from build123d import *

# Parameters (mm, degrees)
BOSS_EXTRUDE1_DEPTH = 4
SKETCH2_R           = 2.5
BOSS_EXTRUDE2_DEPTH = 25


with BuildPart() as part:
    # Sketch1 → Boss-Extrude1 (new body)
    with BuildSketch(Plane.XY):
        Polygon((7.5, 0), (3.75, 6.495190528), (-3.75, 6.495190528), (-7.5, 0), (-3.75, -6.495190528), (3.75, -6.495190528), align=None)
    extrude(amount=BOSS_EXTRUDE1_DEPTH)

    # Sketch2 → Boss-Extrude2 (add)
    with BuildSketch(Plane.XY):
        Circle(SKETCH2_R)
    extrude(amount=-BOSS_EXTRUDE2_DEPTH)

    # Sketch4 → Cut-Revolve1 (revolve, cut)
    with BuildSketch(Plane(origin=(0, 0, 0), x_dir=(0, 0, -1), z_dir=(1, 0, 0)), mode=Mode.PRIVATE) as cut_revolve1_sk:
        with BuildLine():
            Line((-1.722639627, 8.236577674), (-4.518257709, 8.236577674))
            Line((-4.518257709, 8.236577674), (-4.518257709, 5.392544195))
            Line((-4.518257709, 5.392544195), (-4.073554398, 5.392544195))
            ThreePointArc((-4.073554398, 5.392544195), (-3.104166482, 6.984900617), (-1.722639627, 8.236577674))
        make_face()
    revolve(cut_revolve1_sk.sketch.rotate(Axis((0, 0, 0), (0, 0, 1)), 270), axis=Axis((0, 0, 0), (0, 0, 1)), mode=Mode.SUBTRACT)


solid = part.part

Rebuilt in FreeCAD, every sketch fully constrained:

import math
import FreeCAD as App
import Part
import Sketcher
Q = App.Units.Quantity

doc = App.newDocument("Part")
body = doc.addObject("PartDesign::Body", "Body")

# Sketch on XY plane
sketch1 = body.newObject("Sketcher::SketchObject", "Sketch")
sketch1.AttachmentSupport = (doc.getObject("XY_Plane"), [""])
sketch1.MapMode = "FlatFace"
sketch1.addGeometry(Part.LineSegment(App.Vector(8, 0, 0), App.Vector(4, 6, 0)), False)
sketch1.addGeometry(Part.LineSegment(App.Vector(4, 6, 0), App.Vector(-4, 6, 0)), False)
sketch1.addGeometry(Part.LineSegment(App.Vector(-4, 6, 0), App.Vector(-8, 0, 0)), False)
sketch1.addGeometry(Part.LineSegment(App.Vector(-8, 0, 0), App.Vector(-4, -6, 0)), False)
sketch1.addGeometry(Part.LineSegment(App.Vector(-4, -6, 0), App.Vector(4, -6, 0)), False)
sketch1.addGeometry(Part.LineSegment(App.Vector(4, -6, 0), App.Vector(8, 0, 0)), False)
sketch1.addConstraint(Sketcher.Constraint("Coincident", 0, 2, 1, 1))
sketch1.addConstraint(Sketcher.Constraint("Coincident", 1, 2, 2, 1))
sketch1.addConstraint(Sketcher.Constraint("Coincident", 2, 2, 3, 1))
sketch1.addConstraint(Sketcher.Constraint("Coincident", 3, 2, 4, 1))
sketch1.addConstraint(Sketcher.Constraint("Coincident", 4, 2, 5, 1))
sketch1.addConstraint(Sketcher.Constraint("Coincident", 5, 2, 0, 1))
sketch1.addConstraint(Sketcher.Constraint("Horizontal", 1))
sketch1.addConstraint(Sketcher.Constraint("Horizontal", 4))
sketch1.addConstraint(Sketcher.Constraint("Symmetric", 0, 2, 3, 2, -1, 1))
sketch1.addConstraint(Sketcher.Constraint("Symmetric", 2, 2, 5, 2, -1, 1))
sketch1.addConstraint(Sketcher.Constraint("PointOnObject", 2, 2, -1))
sketch1.addConstraint(Sketcher.Constraint("Parallel", 2, 5))
sketch1.addConstraint(Sketcher.Constraint("Vertical", 1, 2, 3, 2))
sketch1.addConstraint(Sketcher.Constraint("Angle", 0, Q("120 deg")))
sketch1.addConstraint(Sketcher.Constraint("DistanceX", 1, 2, 1, 1, 7.5))
sketch1.addConstraint(Sketcher.Constraint("DistanceX", 2, 2, 5, 2, 15.0))
pad1 = body.newObject("PartDesign::Pad", "Pad")
pad1.Profile = sketch1
pad1.Length = 4

# Sketch on XY plane
sketch2 = body.newObject("Sketcher::SketchObject", "Sketch001")
sketch2.AttachmentSupport = (doc.getObject("XY_Plane"), [""])
sketch2.MapMode = "FlatFace"
sketch2.addGeometry(Part.Circle(App.Vector(0, 0, 0), App.Vector(0, 0, 1), 2.5), False)
sketch2.addConstraint(Sketcher.Constraint("Coincident", 0, 3, -1, 1))
sketch2.addConstraint(Sketcher.Constraint("Diameter", 0, 5.0))
pad2 = body.newObject("PartDesign::Pad", "Pad001")
pad2.Profile = sketch2
pad2.Length = 25
pad2.Reversed = True

# Sketch on YZ plane
sketch3 = body.newObject("Sketcher::SketchObject", "Sketch002")
sketch3.AttachmentSupport = (doc.getObject("YZ_Plane"), [""])
sketch3.MapMode = "FlatFace"
sketch3.addGeometry(Part.LineSegment(App.Vector(8.24, 1.72, 0), App.Vector(8.24, 4.52, 0)), False)
sketch3.addGeometry(Part.LineSegment(App.Vector(8.24, 4.52, 0), App.Vector(5.39, 4.52, 0)), False)
sketch3.addGeometry(Part.LineSegment(App.Vector(5.39, 4.52, 0), App.Vector(5.39, 4.07, 0)), False)
sketch3.addGeometry(Part.ArcOfCircle(Part.Circle(App.Vector(2.84, -1.91, 0), App.Vector(0, 0, 1), 6.5), math.radians(34), math.radians(67)), False)
sketch3.addConstraint(Sketcher.Constraint("Coincident", 0, 2, 1, 1))
sketch3.addConstraint(Sketcher.Constraint("Coincident", 1, 2, 2, 1))
sketch3.addConstraint(Sketcher.Constraint("Coincident", 2, 2, 3, 2))
sketch3.addConstraint(Sketcher.Constraint("Coincident", 3, 1, 0, 1))
sketch3.addConstraint(Sketcher.Constraint("Vertical", 0))
sketch3.addConstraint(Sketcher.Constraint("Horizontal", 1))
sketch3.addConstraint(Sketcher.Constraint("Vertical", 2))
sketch3.addConstraint(Sketcher.Constraint("Radius", 3, 6.499363))
sketch3.addConstraint(Sketcher.Constraint("DistanceY", 0, 1, 0, 2, 2.795618))
sketch3.addConstraint(Sketcher.Constraint("DistanceY", 3, 3, -1, 1, 1.9053))
sketch3.addConstraint(Sketcher.Constraint("DistanceX", 1, 2, 1, 1, 2.844033))
sketch3.addConstraint(Sketcher.Constraint("DistanceY", 2, 2, 2, 1, 0.444703))
sketch3.addConstraint(Sketcher.Constraint("DistanceX", -1, 1, 3, 3, 2.844011))
groove = body.newObject("PartDesign::Groove", "Groove")
groove.Profile = sketch3
groove.ReferenceAxis = (sketch3, ["V_Axis"])
groove.Angle = 360

doc.recompute()
